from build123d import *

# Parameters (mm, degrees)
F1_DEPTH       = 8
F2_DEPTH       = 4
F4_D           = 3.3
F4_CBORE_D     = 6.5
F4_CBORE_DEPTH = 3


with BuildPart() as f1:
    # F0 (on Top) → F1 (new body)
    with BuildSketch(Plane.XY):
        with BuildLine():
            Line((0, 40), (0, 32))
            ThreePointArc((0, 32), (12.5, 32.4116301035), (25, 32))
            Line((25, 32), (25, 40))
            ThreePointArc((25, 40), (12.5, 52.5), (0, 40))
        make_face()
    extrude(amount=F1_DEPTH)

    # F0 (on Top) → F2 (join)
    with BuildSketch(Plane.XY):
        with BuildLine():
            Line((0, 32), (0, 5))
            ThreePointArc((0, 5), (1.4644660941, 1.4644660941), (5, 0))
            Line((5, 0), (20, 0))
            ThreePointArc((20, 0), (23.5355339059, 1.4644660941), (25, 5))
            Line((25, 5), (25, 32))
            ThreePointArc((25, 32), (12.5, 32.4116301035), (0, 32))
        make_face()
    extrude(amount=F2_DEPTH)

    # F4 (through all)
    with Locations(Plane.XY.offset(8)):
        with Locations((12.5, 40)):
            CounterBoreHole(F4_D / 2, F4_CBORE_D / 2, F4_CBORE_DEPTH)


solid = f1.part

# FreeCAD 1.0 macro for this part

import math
import FreeCAD as App
import Part
import Sketcher

V = App.Vector

doc = App.newDocument("Part")
body = doc.addObject("PartDesign::Body", "Body")

sketch1 = body.newObject("Sketcher::SketchObject", "Sketch")
sketch1.AttachmentSupport = (doc.getObject("XY_Plane"), [""])
sketch1.MapMode = "FlatFace"
sketch1.addGeometry([
    Part.LineSegment(V(0, 40, 0), V(0, 32, 0)),
    Part.ArcOfCircle(Part.Circle(V(12, -158, 0), V(0, 0, 1), 190), math.radians(86.23), math.radians(93.77)),
    Part.LineSegment(V(25, 32, 0), V(25, 40, 0)),
    Part.ArcOfCircle(Part.Circle(V(12, 40, 0), V(0, 0, 1), 12), math.radians(0), math.radians(180)),
], False)
sketch1.addConstraint([
    Sketcher.Constraint("Coincident", 0, 2, 1, 2),
    Sketcher.Constraint("Coincident", 1, 1, 2, 1),
    Sketcher.Constraint("Tangent", 2, 2, 3, 1),
    Sketcher.Constraint("Tangent", 3, 2, 0, 1),
    Sketcher.Constraint("Vertical", 0),
    Sketcher.Constraint("Vertical", 2),
    Sketcher.Constraint("PointOnObject", 0, 2, -2),
    Sketcher.Constraint("Horizontal", 0, 2, 1, 1),
    Sketcher.Constraint("Radius", 1, 190.0),
    Sketcher.Constraint("Radius", 3, 12.5),
    Sketcher.Constraint("DistanceY", 0, 2, 0, 1, 8.0),
    Sketcher.Constraint("DistanceY", -1, 1, 3, 3, 40.0),
])
pad1 = body.newObject("PartDesign::Pad", "Pad")
pad1.Profile = sketch1
pad1.Length = 8

sketch2 = body.newObject("Sketcher::SketchObject", "Sketch001")
sketch2.AttachmentSupport = (doc.getObject("XY_Plane"), [""])
sketch2.MapMode = "FlatFace"
sketch2.addGeometry([
    Part.LineSegment(V(0, 32, 0), V(0, 5, 0)),
    Part.ArcOfCircle(Part.Circle(V(5, 5, 0), V(0, 0, 1), 5), math.radians(180), math.radians(270)),
    Part.LineSegment(V(5, 0, 0), V(20, 0, 0)),
    Part.ArcOfCircle(Part.Circle(V(20, 5, 0), V(0, 0, 1), 5), math.radians(-90), math.radians(0)),
    Part.LineSegment(V(25, 5, 0), V(25, 32, 0)),
    Part.ArcOfCircle(Part.Circle(V(12, -158, 0), V(0, 0, 1), 190), math.radians(86.23), math.radians(93.77)),
], False)
sketch2.addConstraint([
    Sketcher.Constraint("Tangent", 0, 2, 1, 1),
    Sketcher.Constraint("Tangent", 1, 2, 2, 1),
    Sketcher.Constraint("Tangent", 2, 2, 3, 1),
    Sketcher.Constraint("Tangent", 3, 2, 4, 1),
    Sketcher.Constraint("Coincident", 4, 2, 5, 1),
    Sketcher.Constraint("Coincident", 5, 2, 0, 1),
    Sketcher.Constraint("Vertical", 0),
    Sketcher.Constraint("Horizontal", 2),
    Sketcher.Constraint("Vertical", 4),
    Sketcher.Constraint("Equal", 1, 3),
    Sketcher.Constraint("PointOnObject", 0, 2, -2),
    Sketcher.Constraint("PointOnObject", 1, 2, -1),
    Sketcher.Constraint("Horizontal", 4, 2, 5, 2),
    Sketcher.Constraint("Radius", 1, 5.0),
    Sketcher.Constraint("Radius", 5, 190.0),
    Sketcher.Constraint("DistanceX", 2, 1, 2, 2, 15.0),
    Sketcher.Constraint("DistanceY", 0, 2, 0, 1, 27.0),
])
pad2 = body.newObject("PartDesign::Pad", "Pad001")
pad2.Profile = sketch2
pad2.Length = 4

sketch3 = body.newObject("Sketcher::SketchObject", "Sketch002")
sketch3.AttachmentSupport = (doc.getObject("XY_Plane"), [""])
sketch3.MapMode = "FlatFace"
sketch3.AttachmentOffset = App.Placement(V(0, 0, 8), App.Rotation())
sketch3.addGeometry(Part.Circle(V(12.5, 40, 0), V(0, 0, 1), 1.6), False)
sketch3.addConstraint([
    Sketcher.Constraint("Diameter", 0, 3.3),
    Sketcher.Constraint("DistanceY", -1, 1, 0, 3, 40.0),
    Sketcher.Constraint("DistanceX", -1, 1, 0, 3, 12.5),
])
doc.recompute()
hole = body.newObject("PartDesign::Hole", "Hole")
hole.Profile = sketch3
hole.ThreadType = "None"
hole.Diameter = 3.3
hole.DepthType = "ThroughAll"
hole.HoleCutType = "Counterbore"
hole.HoleCutDiameter = 6.5
hole.HoleCutDepth = 3

doc.recompute()
